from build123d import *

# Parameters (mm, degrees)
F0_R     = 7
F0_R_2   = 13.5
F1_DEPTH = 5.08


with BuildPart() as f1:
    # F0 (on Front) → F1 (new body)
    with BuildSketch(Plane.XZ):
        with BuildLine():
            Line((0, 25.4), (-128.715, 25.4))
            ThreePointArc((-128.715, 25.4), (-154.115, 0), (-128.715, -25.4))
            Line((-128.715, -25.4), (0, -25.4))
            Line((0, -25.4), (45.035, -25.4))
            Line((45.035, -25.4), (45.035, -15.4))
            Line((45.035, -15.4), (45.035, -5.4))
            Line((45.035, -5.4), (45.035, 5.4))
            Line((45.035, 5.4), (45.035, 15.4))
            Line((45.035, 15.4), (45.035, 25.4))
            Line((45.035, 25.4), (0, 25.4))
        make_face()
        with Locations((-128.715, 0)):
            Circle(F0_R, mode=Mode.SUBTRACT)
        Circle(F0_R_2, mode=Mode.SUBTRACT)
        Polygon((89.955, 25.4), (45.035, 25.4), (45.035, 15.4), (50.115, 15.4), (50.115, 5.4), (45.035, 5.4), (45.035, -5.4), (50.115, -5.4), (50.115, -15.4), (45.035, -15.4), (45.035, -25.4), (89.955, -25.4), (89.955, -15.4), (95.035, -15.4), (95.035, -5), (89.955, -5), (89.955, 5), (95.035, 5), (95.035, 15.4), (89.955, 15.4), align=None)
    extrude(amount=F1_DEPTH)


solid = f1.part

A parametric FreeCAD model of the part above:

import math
import FreeCAD as App
import Part
import Sketcher

V = App.Vector
Q = App.Units.Quantity


def add_polygon(sketch, points):
    """Adds a closed chain of lines whose ends are joined by coincident constraints."""
    first, n = sketch.GeometryCount, len(points)
    for a, b in zip(points, points[1:] + points[:1]):
        sketch.addGeometry(Part.LineSegment(App.Vector(*a, 0), App.Vector(*b, 0)), False)
    for i in range(n):
        sketch.addConstraint(Sketcher.Constraint("Coincident", first + i, 2, first + (i + 1) % n, 1))

doc = App.newDocument("Part")
body = doc.addObject("PartDesign::Body", "Body")

sketch1 = body.newObject("Sketcher::SketchObject", "Sketch")
sketch1.AttachmentSupport = (doc.getObject("XZ_Plane"), [""])
sketch1.MapMode = "FlatFace"
sketch1.addGeometry(Part.ArcOfCircle(Part.Circle(V(-128.715, 0, 0), V(0, 0, 1), 25.4), math.radians(90), math.radians(270)), False)
sketch1.addGeometry(Part.LineSegment(V(-128.715, -25.4, 0), V(89.955, -25.4, 0)), False)
sketch1.addGeometry(Part.LineSegment(V(89.955, -25.4, 0), V(89.955, -15.4, 0)), False)
sketch1.addGeometry(Part.LineSegment(V(89.955, -15.4, 0), V(95.035, -15.4, 0)), False)
sketch1.addGeometry(Part.LineSegment(V(95.035, -15.4, 0), V(95.035, -5, 0)), False)
sketch1.addGeometry(Part.LineSegment(V(95.035, -5, 0), V(89.955, -5, 0)), False)
sketch1.addGeometry(Part.LineSegment(V(89.955, -5, 0), V(89.955, 5, 0)), False)
sketch1.addGeometry(Part.LineSegment(V(89.955, 5, 0), V(95.035, 5, 0)), False)
sketch1.addGeometry(Part.LineSegment(V(95.035, 5, 0), V(95.035, 15.4, 0)), False)
sketch1.addGeometry(Part.LineSegment(V(95.035, 15.4, 0), V(89.955, 15.4, 0)), False)
sketch1.addGeometry(Part.LineSegment(V(89.955, 15.4, 0), V(89.955, 25.4, 0)), False)
sketch1.addGeometry(Part.LineSegment(V(89.955, 25.4, 0), V(-128.715, 25.4, 0)), False)
add_polygon(sketch1, [(45.035, -15.4), (45.035, -5.4), (50.115, -5.4), (50.115, -15.4)])
add_polygon(sketch1, [(45.035, 5.4), (45.035, 15.4), (50.115, 15.4), (50.115, 5.4)])
sketch1.addGeometry(Part.Circle(V(-128.715, 0, 0), V(0, 0, 1), 7), False)
sketch1.addGeometry(Part.Circle(V(0, 0, 0), V(0, 0, 1), 13.5), False)
sketch1.addConstraint([
    Sketcher.Constraint("Tangent", 0, 2, 1, 1),
    Sketcher.Constraint("Coincident", 1, 2, 2, 1),
    Sketcher.Constraint("Coincident", 2, 2, 3, 1),
    Sketcher.Constraint("Coincident", 3, 2, 4, 1),
    Sketcher.Constraint("Coincident", 4, 2, 5, 1),
    Sketcher.Constraint("Coincident", 5, 2, 6, 1),
    Sketcher.Constraint("Coincident", 6, 2, 7, 1),
    Sketcher.Constraint("Coincident", 7, 2, 8, 1),
    Sketcher.Constraint("Coincident", 8, 2, 9, 1),
    Sketcher.Constraint("Coincident", 9, 2, 10, 1),
    Sketcher.Constraint("Coincident", 10, 2, 11, 1),
    Sketcher.Constraint("Tangent", 11, 2, 0, 1),
    Sketcher.Constraint("Horizontal", 1),
    Sketcher.Constraint("Vertical", 2),
    Sketcher.Constraint("Horizontal", 3),
    Sketcher.Constraint("Vertical", 4),
    Sketcher.Constraint("Horizontal", 5),
    Sketcher.Constraint("Vertical", 6),
    Sketcher.Constraint("Horizontal", 7),
    Sketcher.Constraint("Vertical", 8),
    Sketcher.Constraint("Horizontal", 9),
    Sketcher.Constraint("Vertical", 10),
    Sketcher.Constraint("Horizontal", 11),
    Sketcher.Constraint("Vertical", 12),
    Sketcher.Constraint("Horizontal", 13),
    Sketcher.Constraint("Vertical", 14),
    Sketcher.Constraint("Horizontal", 15),
    Sketcher.Constraint("Vertical", 16),
    Sketcher.Constraint("Horizontal", 17),
    Sketcher.Constraint("Vertical", 18),
    Sketcher.Constraint("Horizontal", 19),
    Sketcher.Constraint("Coincident", 21, 3, -1, 1),
    Sketcher.Constraint("Coincident", 20, 3, 0, 3),
    Sketcher.Constraint("Symmetric", 4, 2, 7, 2, -1),
    Sketcher.Constraint("Symmetric", 2, 2, 9, 2, -1),
    Sketcher.Constraint("Symmetric", 15, 2, 16, 2, -1),
    Sketcher.Constraint("Symmetric", 13, 2, 18, 2, -1),
    Sketcher.Constraint("PointOnObject", 0, 3, -1),
    Sketcher.Constraint("Horizontal", 3, 2, 14, 2),
    Sketcher.Constraint("Vertical", 2, 2, 5, 2),
    Sketcher.Constraint("Equal", 9, 13),
    Sketcher.Constraint("Equal", 2, 6),
    Sketcher.Constraint("Equal", 10, 12),
    Sketcher.Constraint("Diameter", 20, Q("14 mm")),
    Sketcher.Constraint("Diameter", 21, Q("27 mm")),
    Sketcher.Constraint("Radius", 0, Q("25.4 mm")),
    Sketcher.Constraint("DistanceY", 2, 1, 2, 2, Q("10 mm")),
    Sketcher.Constraint("DistanceX", 1, 1, 1, 2, Q("218.67 mm")),
    Sketcher.Constraint("DistanceX", 3, 1, 3, 2, Q("5.08 mm")),
    Sketcher.Constraint("DistanceX", 12, 2, 5, 2, Q("44.92 mm")),
    Sketcher.Constraint("DistanceX", 0, 3, -1, 1, Q("128.715 mm")),
])
pad1 = body.newObject("PartDesign::Pad", "Pad")
pad1.Profile = sketch1
pad1.Length = 5.08

doc.recompute()
